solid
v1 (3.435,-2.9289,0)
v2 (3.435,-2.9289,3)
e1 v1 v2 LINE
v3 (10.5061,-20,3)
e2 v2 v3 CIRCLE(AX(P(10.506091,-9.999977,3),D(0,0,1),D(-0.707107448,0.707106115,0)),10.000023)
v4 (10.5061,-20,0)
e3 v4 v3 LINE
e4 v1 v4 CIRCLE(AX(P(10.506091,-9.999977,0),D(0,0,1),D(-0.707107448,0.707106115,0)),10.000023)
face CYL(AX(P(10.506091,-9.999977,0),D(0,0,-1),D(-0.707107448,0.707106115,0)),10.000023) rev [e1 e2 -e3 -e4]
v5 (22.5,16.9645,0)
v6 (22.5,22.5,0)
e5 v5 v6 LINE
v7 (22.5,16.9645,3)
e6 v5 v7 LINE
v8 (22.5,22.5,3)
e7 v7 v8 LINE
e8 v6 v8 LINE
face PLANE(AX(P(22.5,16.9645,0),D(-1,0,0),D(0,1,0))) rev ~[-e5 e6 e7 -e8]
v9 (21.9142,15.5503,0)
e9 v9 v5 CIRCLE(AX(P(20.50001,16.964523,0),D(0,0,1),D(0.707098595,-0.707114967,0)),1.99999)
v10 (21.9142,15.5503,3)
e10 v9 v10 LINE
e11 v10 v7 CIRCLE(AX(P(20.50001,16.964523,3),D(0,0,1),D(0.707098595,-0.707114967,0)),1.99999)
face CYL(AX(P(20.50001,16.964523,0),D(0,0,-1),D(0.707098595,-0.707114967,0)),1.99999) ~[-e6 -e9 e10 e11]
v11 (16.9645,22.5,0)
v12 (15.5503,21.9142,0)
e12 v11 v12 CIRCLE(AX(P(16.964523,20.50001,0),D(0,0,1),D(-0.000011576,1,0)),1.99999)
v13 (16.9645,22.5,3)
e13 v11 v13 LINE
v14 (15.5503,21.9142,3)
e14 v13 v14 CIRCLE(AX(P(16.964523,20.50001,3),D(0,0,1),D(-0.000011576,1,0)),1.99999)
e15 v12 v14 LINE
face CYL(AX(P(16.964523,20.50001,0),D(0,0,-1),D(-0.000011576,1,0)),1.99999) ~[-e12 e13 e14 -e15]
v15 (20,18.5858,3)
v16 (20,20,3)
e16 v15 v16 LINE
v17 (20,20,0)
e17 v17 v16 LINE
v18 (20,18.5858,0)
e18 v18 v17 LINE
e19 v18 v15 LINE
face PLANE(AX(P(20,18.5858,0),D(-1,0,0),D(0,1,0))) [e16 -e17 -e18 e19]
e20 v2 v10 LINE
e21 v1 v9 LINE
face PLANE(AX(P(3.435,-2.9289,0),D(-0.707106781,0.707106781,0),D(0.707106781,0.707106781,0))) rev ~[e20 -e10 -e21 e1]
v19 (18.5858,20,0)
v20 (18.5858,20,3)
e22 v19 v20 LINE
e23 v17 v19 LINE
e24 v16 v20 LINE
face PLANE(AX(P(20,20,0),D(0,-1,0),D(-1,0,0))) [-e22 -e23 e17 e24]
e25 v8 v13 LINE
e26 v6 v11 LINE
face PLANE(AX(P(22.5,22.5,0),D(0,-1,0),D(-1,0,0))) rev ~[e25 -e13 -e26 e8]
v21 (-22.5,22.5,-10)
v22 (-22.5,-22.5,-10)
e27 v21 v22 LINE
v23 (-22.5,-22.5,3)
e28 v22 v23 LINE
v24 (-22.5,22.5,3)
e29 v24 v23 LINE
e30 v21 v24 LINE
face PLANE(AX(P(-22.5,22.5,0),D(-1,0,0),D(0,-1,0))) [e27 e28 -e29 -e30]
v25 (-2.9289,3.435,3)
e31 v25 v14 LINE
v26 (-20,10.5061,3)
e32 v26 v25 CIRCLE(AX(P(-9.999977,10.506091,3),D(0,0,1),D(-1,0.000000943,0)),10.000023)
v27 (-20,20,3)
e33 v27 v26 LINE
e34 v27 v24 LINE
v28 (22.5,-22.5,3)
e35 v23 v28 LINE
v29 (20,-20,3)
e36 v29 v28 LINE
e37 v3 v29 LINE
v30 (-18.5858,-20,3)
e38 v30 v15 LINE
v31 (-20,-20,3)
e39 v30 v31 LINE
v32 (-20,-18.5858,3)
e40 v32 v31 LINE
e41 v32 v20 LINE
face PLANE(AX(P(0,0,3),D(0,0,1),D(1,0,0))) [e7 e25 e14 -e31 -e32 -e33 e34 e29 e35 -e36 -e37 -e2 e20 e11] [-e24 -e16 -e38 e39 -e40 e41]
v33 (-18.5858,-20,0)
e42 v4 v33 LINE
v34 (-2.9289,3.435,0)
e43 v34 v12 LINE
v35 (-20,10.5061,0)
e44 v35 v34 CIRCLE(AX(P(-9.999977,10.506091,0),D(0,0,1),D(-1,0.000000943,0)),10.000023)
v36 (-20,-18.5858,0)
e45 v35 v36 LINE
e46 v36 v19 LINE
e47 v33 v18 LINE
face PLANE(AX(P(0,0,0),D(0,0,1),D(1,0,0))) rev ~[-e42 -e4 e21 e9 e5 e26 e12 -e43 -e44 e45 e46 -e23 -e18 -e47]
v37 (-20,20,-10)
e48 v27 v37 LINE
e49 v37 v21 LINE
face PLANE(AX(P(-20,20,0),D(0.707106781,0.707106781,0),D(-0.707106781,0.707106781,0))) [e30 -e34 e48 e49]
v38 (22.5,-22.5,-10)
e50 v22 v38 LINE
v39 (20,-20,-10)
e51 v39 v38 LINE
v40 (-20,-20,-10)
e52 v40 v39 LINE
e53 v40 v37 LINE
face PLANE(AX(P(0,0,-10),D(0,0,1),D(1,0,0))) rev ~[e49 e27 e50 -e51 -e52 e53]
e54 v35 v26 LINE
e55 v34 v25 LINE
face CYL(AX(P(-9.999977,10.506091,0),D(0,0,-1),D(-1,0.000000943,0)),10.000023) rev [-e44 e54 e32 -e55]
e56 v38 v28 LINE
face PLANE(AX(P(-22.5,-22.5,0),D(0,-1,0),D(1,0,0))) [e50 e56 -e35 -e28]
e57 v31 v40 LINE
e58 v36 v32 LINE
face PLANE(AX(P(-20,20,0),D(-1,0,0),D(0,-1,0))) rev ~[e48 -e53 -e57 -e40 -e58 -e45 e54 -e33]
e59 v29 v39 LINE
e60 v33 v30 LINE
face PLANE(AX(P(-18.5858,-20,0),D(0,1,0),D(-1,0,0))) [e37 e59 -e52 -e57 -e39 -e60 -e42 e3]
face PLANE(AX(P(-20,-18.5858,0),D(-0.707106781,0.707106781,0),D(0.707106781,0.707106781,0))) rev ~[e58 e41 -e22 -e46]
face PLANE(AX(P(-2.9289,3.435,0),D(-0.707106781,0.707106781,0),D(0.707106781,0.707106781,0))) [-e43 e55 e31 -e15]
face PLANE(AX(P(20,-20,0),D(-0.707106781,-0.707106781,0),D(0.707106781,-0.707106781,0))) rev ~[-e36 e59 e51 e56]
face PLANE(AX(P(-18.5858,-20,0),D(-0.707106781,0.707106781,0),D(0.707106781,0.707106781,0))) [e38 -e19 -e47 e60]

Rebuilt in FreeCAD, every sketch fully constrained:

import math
import FreeCAD as App
import Part
import Sketcher
Q = App.Units.Quantity

doc = App.newDocument("Part")
params = doc.addObject("Spreadsheet::Sheet", "Params")
for row, (alias, value) in enumerate([
    ("sketch1_radius", "10 mm"),
    ("sketch1_radius2", "2 mm"),
    ("sketch1_width", "45 mm"),
    ("pad1_length", "3 mm"),
    ("sketch2_width", "45 mm"),
    ("sketch2_width2", "40 mm"),
    ("pad2_length", "10 mm"),
], start=1):
    params.set(f"A{row}", alias)
    params.set(f"B{row}", "=" + value)
    params.setAlias(f"B{row}", alias)

body = doc.addObject("PartDesign::Body", "Body")

sketch1 = doc.addObject("Sketcher::SketchObject", "Sketch")
body.addObject(sketch1)
sketch1.AttachmentSupport = (doc.XY_Plane, [""])
sketch1.MapMode = "FlatFace"
sketch1.addGeometry([
    Part.LineSegment(App.Vector(-20, 20, 0), App.Vector(-22.5, 22.5, 0)),
    Part.LineSegment(App.Vector(-22.5, 22.5, 0), App.Vector(-22.5, -22.5, 0)),
    Part.LineSegment(App.Vector(-22.5, -22.5, 0), App.Vector(22.5, -22.5, 0)),
    Part.LineSegment(App.Vector(22.5, -22.5, 0), App.Vector(20, -20, 0)),
    Part.LineSegment(App.Vector(20, -20, 0), App.Vector(10.5, -20, 0)),
    Part.ArcOfCircle(Part.Circle(App.Vector(10.5, -10, 0), App.Vector(0, 0, 1), 10), math.radians(135), math.radians(270)),
    Part.LineSegment(App.Vector(3.4, -2.9, 0), App.Vector(21.9, 15.6, 0)),
    Part.ArcOfCircle(Part.Circle(App.Vector(20.5, 17, 0), App.Vector(0, 0, 1), 2), math.radians(-45), math.radians(0)),
    Part.LineSegment(App.Vector(22.5, 17, 0), App.Vector(22.5, 22.5, 0)),
    Part.LineSegment(App.Vector(22.5, 22.5, 0), App.Vector(17, 22.5, 0)),
    Part.ArcOfCircle(Part.Circle(App.Vector(17, 20.5, 0), App.Vector(0, 0, 1), 2), math.radians(90), math.radians(135)),
    Part.LineSegment(App.Vector(15.6, 21.9, 0), App.Vector(-2.9, 3.4, 0)),
    Part.ArcOfCircle(Part.Circle(App.Vector(-10, 10.5, 0), App.Vector(0, 0, 1), 10), math.radians(180), math.radians(315)),
    Part.LineSegment(App.Vector(-20, 10.5, 0), App.Vector(-20, 20, 0)),
    Part.LineSegment(App.Vector(-20, -20, 0), App.Vector(-20, -18.6, 0)),
    Part.LineSegment(App.Vector(-20, -18.6, 0), App.Vector(18.6, 20, 0)),
    Part.LineSegment(App.Vector(18.6, 20, 0), App.Vector(20, 20, 0)),
    Part.LineSegment(App.Vector(20, 20, 0), App.Vector(20, 18.6, 0)),
    Part.LineSegment(App.Vector(20, 18.6, 0), App.Vector(-18.6, -20, 0)),
    Part.LineSegment(App.Vector(-18.6, -20, 0), App.Vector(-20, -20, 0)),
], False)
sketch1.addConstraint([
    Sketcher.Constraint("Coincident", 0, 2, 1, 1),
    Sketcher.Constraint("Coincident", 1, 2, 2, 1),
    Sketcher.Constraint("Coincident", 2, 2, 3, 1),
    Sketcher.Constraint("Coincident", 3, 2, 4, 1),
    Sketcher.Constraint("Tangent", 4, 2, 5, 2),
    Sketcher.Constraint("Tangent", 5, 1, 6, 1),
    Sketcher.Constraint("Tangent", 6, 2, 7, 1),
    Sketcher.Constraint("Tangent", 7, 2, 8, 1),
    Sketcher.Constraint("Coincident", 8, 2, 9, 1),
    Sketcher.Constraint("Tangent", 9, 2, 10, 1),
    Sketcher.Constraint("Tangent", 10, 2, 11, 1),
    Sketcher.Constraint("Tangent", 11, 2, 12, 2),
    Sketcher.Constraint("Tangent", 12, 1, 13, 1),
    Sketcher.Constraint("Coincident", 13, 2, 0, 1),
    Sketcher.Constraint("Coincident", 14, 2, 15, 1),
    Sketcher.Constraint("Coincident", 15, 2, 16, 1),
    Sketcher.Constraint("Coincident", 16, 2, 17, 1),
    Sketcher.Constraint("Coincident", 17, 2, 18, 1),
    Sketcher.Constraint("Coincident", 18, 2, 19, 1),
    Sketcher.Constraint("Coincident", 19, 2, 14, 1),
    Sketcher.Constraint("Vertical", 1),
    Sketcher.Constraint("Horizontal", 2),
    Sketcher.Constraint("Horizontal", 4),
    Sketcher.Constraint("Vertical", 8),
    Sketcher.Constraint("Horizontal", 9),
    Sketcher.Constraint("Vertical", 13),
    Sketcher.Constraint("Vertical", 14),
    Sketcher.Constraint("Horizontal", 16),
    Sketcher.Constraint("Vertical", 17),
    Sketcher.Constraint("Horizontal", 19),
    Sketcher.Constraint("Equal", 7, 10),
    Sketcher.Constraint("Equal", 5, 12),
    Sketcher.Constraint("Symmetric", 0, 2, 2, 2, -1, 1),
    Sketcher.Constraint("Symmetric", 1, 2, 8, 2, -1, 1),
    Sketcher.Constraint("Symmetric", 3, 2, 13, 2, -1, 1),
    Sketcher.Constraint("Symmetric", 14, 2, 17, 2, -1, 1),
    Sketcher.Constraint("Symmetric", 15, 2, 18, 2, -1, 1),
    Sketcher.Constraint("Symmetric", 13, 2, 16, 2, -2),
    Sketcher.Constraint("Perpendicular", 3, 6),
    Sketcher.Constraint("Parallel", 6, 11),
    Sketcher.Constraint("Parallel", 11, 15),
    Sketcher.Constraint("Equal", 2, 1),
    Sketcher.Constraint("Equal", 9, 8),
    Sketcher.Constraint("Equal", 4, 13),
    Sketcher.Constraint("Radius", 5, Q("10 mm")),
    Sketcher.Constraint("Radius", 7, Q("2 mm")),
    Sketcher.Constraint("DistanceX", 2, 1, 2, 2, Q("45 mm")),
    Sketcher.Constraint("DistanceY", 5, 3, -1, 1, Q("10 mm")),
    Sketcher.Constraint("DistanceX", 4, 2, 4, 1, Q("9.494 mm")),
    Sketcher.Constraint("DistanceX", 16, 1, 16, 2, Q("1.4142 mm")),
])
sketch1.setExpression("Constraints[44]", "Params.sketch1_radius")
sketch1.setExpression("Constraints[45]", "Params.sketch1_radius2")
sketch1.setExpression("Constraints[46]", "Params.sketch1_width")
pad1 = doc.addObject("PartDesign::Pad", "Pad")
body.addObject(pad1)
pad1.Profile = sketch1
pad1.setExpression("Length", "Params.pad1_length")

sketch2 = doc.addObject("Sketcher::SketchObject", "Sketch001")
body.addObject(sketch2)
sketch2.AttachmentSupport = (doc.XY_Plane, [""])
sketch2.MapMode = "FlatFace"
sketch2.addGeometry([
    Part.LineSegment(App.Vector(-20, 20, 0), App.Vector(-22.5, 22.5, 0)),
    Part.LineSegment(App.Vector(-22.5, 22.5, 0), App.Vector(-22.5, -22.5, 0)),
    Part.LineSegment(App.Vector(-22.5, -22.5, 0), App.Vector(22.5, -22.5, 0)),
    Part.LineSegment(App.Vector(22.5, -22.5, 0), App.Vector(20, -20, 0)),
    Part.LineSegment(App.Vector(20, -20, 0), App.Vector(-20, -20, 0)),
    Part.LineSegment(App.Vector(-20, -20, 0), App.Vector(-20, 20, 0)),
], False)
sketch2.addConstraint([
    Sketcher.Constraint("Coincident", 0, 2, 1, 1),
    Sketcher.Constraint("Coincident", 1, 2, 2, 1),
    Sketcher.Constraint("Coincident", 2, 2, 3, 1),
    Sketcher.Constraint("Coincident", 3, 2, 4, 1),
    Sketcher.Constraint("Coincident", 4, 2, 5, 1),
    Sketcher.Constraint("Coincident", 5, 2, 0, 1),
    Sketcher.Constraint("Vertical", 1),
    Sketcher.Constraint("Horizontal", 2),
    Sketcher.Constraint("Horizontal", 4),
    Sketcher.Constraint("Vertical", 5),
    Sketcher.Constraint("Symmetric", 0, 2, 2, 2, -1, 1),
    Sketcher.Constraint("Symmetric", 3, 2, 5, 2, -1, 1),
    Sketcher.Constraint("Equal", 2, 1),
    Sketcher.Constraint("Equal", 4, 5),
    Sketcher.Constraint("DistanceX", 2, 1, 2, 2, Q("45 mm")),
    Sketcher.Constraint("DistanceX", 4, 2, 4, 1, Q("40 mm")),
])
sketch2.setExpression("Constraints[14]", "Params.sketch2_width")
sketch2.setExpression("Constraints[15]", "Params.sketch2_width2")
pad2 = doc.addObject("PartDesign::Pad", "Pad001")
body.addObject(pad2)
pad2.Profile = sketch2
pad2.setExpression("Length", "Params.pad2_length")
pad2.Reversed = True

doc.recompute()
